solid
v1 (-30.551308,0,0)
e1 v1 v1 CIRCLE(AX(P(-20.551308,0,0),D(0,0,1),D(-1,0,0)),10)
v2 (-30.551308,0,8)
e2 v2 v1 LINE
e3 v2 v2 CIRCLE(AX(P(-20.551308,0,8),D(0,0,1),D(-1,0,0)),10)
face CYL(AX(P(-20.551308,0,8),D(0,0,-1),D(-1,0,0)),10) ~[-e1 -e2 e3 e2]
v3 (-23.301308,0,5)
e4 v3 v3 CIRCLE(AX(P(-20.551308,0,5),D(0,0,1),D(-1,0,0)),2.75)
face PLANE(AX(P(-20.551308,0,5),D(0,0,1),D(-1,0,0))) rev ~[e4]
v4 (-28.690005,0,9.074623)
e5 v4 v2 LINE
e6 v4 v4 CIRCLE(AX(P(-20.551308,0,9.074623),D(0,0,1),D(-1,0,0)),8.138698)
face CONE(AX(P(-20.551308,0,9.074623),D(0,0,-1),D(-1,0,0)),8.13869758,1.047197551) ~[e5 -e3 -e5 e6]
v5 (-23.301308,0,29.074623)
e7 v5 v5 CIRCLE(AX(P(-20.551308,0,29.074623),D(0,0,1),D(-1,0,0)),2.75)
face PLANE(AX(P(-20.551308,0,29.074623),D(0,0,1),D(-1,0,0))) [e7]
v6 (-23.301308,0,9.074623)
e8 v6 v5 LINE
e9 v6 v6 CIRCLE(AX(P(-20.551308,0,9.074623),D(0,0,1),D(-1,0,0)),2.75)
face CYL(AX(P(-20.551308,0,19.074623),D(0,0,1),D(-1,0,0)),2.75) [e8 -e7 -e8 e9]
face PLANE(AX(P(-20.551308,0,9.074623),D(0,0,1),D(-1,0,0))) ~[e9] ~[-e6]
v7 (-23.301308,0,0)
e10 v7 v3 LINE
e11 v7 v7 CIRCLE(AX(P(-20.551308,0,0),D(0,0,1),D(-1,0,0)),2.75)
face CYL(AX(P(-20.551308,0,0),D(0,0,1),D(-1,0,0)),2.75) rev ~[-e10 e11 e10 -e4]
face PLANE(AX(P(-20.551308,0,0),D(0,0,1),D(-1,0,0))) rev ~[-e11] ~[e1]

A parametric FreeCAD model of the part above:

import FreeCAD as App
import Part
import Sketcher
Q = App.Units.Quantity


def add_polygon(sketch, points):
    """Adds a closed chain of lines whose ends are joined by coincident constraints."""
    first, n = sketch.GeometryCount, len(points)
    for a, b in zip(points, points[1:] + points[:1]):
        sketch.addGeometry(Part.LineSegment(App.Vector(*a, 0), App.Vector(*b, 0)), False)
    for i in range(n):
        sketch.addConstraint(Sketcher.Constraint("Coincident", first + i, 2, first + (i + 1) % n, 1))

doc = App.newDocument("Part")
body = doc.addObject("PartDesign::Body", "Body")

# Sketch on XZ plane
sketch1 = body.newObject("Sketcher::SketchObject", "Sketch")
sketch1.AttachmentSupport = (doc.getObject("XZ_Plane"), [""])
sketch1.MapMode = "FlatFace"
add_polygon(sketch1, [(-23.3, 29.1), (-23.3, 9.1), (-28.7, 9.1), (-30.6, 8), (-30.6, 0), (-23.3, 0), (-23.3, 5), (-20.6, 5), (-20.6, 29.1)])  # lines 0-8
sketch1.addGeometry(Part.LineSegment(App.Vector(-20.6, 0, 0), App.Vector(-20.6, 29.1, 0)), True)  # axis
sketch1.addConstraint([
    Sketcher.Constraint("Vertical", 0),
    Sketcher.Constraint("Horizontal", 1),
    Sketcher.Constraint("Vertical", 3),
    Sketcher.Constraint("Horizontal", 4),
    Sketcher.Constraint("Vertical", 5),
    Sketcher.Constraint("Horizontal", 6),
    Sketcher.Constraint("Vertical", 7),
    Sketcher.Constraint("Horizontal", 8),
    Sketcher.Constraint("Vertical", 9),
    Sketcher.Constraint("Coincident", 9, 2, 7, 2),
    Sketcher.Constraint("PointOnObject", 3, 2, -1),
    Sketcher.Constraint("PointOnObject", 9, 1, -1),
    Sketcher.Constraint("Vertical", 0, 2, 4, 2),
    Sketcher.Constraint("DistanceY", 0, 2, 0, 1, Q("20 mm")),
    Sketcher.Constraint("DistanceY", 3, 2, 3, 1, Q("8 mm")),
    Sketcher.Constraint("DistanceY", 5, 1, 5, 2, Q("5 mm")),
    Sketcher.Constraint("Angle", 2, Q("-150 deg")),
    Sketcher.Constraint("DistanceX", 2, 2, 6, 2, Q("10 mm")),
    Sketcher.Constraint("DistanceX", 4, 1, 4, 2, Q("7.25 mm")),
    Sketcher.Constraint("DistanceX", 1, 2, 1, 1, Q("5.388698 mm")),
    Sketcher.Constraint("DistanceX", 0, 2, -1, 1, Q("23.301308 mm")),
])
revolution = body.newObject("PartDesign::Revolution", "Revolution")
revolution.Profile = sketch1
revolution.ReferenceAxis = (sketch1, ["Axis0"])
revolution.Angle = 360

doc.recompute()
